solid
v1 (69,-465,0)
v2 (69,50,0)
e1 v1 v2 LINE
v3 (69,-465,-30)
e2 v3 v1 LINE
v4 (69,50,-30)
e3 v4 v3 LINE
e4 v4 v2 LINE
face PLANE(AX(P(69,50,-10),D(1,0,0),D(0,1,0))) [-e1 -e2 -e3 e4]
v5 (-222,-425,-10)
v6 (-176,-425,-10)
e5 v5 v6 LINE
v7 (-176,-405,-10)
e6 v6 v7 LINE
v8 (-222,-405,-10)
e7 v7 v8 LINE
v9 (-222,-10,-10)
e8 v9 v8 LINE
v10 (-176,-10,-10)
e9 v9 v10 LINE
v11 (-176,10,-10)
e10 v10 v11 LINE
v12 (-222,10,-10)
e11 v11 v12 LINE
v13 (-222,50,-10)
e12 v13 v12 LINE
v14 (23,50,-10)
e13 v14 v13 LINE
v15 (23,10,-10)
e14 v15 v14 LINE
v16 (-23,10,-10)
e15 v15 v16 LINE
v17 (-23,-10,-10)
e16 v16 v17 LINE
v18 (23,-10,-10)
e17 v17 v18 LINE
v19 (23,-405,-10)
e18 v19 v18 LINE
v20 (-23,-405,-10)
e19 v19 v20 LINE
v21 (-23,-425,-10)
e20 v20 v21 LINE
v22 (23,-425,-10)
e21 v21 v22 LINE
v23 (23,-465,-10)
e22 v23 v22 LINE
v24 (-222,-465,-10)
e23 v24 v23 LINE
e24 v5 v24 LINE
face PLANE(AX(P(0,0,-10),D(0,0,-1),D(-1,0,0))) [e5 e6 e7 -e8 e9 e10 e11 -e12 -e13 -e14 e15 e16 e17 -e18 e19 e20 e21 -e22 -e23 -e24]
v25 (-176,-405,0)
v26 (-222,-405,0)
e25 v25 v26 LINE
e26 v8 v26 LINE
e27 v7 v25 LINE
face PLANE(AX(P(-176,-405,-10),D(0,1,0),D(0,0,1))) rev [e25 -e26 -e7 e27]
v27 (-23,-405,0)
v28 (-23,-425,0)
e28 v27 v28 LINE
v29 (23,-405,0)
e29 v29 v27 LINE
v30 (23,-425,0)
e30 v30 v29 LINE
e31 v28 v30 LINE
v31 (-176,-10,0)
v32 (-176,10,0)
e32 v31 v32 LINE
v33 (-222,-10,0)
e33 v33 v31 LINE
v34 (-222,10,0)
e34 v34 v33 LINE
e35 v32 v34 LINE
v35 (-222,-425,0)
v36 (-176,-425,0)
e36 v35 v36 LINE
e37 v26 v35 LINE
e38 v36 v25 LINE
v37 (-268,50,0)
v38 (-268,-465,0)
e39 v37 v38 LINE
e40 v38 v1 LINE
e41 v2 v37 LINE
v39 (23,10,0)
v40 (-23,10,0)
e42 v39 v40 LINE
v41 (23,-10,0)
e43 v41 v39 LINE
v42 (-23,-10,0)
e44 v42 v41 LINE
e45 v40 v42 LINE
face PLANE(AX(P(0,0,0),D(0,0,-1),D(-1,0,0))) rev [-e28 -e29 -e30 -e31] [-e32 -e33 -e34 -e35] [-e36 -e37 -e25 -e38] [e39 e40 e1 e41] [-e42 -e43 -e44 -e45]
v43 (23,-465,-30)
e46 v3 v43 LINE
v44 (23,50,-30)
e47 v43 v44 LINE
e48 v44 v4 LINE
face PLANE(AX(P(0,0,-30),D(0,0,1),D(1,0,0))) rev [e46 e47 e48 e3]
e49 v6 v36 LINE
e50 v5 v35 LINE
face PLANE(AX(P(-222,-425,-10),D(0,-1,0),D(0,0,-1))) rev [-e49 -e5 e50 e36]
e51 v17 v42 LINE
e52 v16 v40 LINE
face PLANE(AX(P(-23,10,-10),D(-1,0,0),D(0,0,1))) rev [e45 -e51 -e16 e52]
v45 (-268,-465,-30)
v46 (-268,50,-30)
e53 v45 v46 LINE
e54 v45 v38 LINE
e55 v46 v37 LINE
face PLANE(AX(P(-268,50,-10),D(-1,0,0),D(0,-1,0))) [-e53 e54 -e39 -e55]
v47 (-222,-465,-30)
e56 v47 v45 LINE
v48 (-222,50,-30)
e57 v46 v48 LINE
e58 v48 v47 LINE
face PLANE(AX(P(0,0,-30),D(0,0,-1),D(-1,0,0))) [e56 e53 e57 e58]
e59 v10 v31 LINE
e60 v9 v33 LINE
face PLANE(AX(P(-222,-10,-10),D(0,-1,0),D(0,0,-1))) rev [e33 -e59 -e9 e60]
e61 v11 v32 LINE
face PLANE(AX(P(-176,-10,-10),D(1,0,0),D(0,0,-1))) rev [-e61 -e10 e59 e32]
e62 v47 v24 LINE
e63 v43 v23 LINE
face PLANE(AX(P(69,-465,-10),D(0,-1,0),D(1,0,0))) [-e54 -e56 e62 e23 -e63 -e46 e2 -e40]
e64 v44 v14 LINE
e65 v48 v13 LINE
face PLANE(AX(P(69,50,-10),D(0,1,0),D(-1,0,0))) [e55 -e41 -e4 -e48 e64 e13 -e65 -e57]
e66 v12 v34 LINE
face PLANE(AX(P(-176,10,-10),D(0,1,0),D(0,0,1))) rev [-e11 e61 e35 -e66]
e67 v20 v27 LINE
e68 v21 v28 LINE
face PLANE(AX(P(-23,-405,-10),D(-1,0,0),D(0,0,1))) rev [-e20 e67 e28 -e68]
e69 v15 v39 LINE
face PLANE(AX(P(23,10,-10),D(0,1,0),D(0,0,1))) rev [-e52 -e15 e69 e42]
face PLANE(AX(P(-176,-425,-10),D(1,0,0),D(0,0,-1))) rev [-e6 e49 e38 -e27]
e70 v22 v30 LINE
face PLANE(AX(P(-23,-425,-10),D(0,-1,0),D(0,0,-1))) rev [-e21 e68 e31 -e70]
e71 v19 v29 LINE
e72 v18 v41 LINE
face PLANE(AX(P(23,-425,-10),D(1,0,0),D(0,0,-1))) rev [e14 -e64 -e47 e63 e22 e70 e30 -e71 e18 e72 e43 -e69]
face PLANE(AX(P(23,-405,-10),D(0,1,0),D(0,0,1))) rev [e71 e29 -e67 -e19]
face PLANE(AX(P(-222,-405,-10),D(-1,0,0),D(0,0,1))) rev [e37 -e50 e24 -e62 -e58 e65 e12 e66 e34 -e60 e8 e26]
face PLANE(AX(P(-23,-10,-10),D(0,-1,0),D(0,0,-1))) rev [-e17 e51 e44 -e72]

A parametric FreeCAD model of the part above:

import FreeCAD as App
import Part
import Sketcher
Q = App.Units.Quantity


def add_polygon(sketch, points):
    """Adds a closed chain of lines whose ends are joined by coincident constraints."""
    first, n = sketch.GeometryCount, len(points)
    for a, b in zip(points, points[1:] + points[:1]):
        sketch.addGeometry(Part.LineSegment(App.Vector(*a, 0), App.Vector(*b, 0)), False)
    for i in range(n):
        sketch.addConstraint(Sketcher.Constraint("Coincident", first + i, 2, first + (i + 1) % n, 1))

doc = App.newDocument("Part")
body = doc.addObject("PartDesign::Body", "Body")

# Sketch on XY plane
sketch1 = doc.addObject("Sketcher::SketchObject", "Sketch")
body.addObject(sketch1)
sketch1.AttachmentSupport = (doc.XY_Plane, [""])
sketch1.MapMode = "FlatFace"
add_polygon(sketch1, [(-268, 50), (-268, -465), (69, -465), (69, 50)])  # lines 0-3
add_polygon(sketch1, [(-176, -425), (-222, -425), (-222, -405), (-176, -405)])  # lines 4-7
add_polygon(sketch1, [(23, -425), (-23, -425), (-23, -405), (23, -405)])  # lines 8-11
add_polygon(sketch1, [(-176, -10), (-222, -10), (-222, 10), (-176, 10)])  # lines 12-15
add_polygon(sketch1, [(23, -10), (-23, -10), (-23, 10), (23, 10)])  # lines 16-19
sketch1.addConstraint(Sketcher.Constraint("Vertical", 0))
sketch1.addConstraint(Sketcher.Constraint("Horizontal", 1))
sketch1.addConstraint(Sketcher.Constraint("Vertical", 2))
sketch1.addConstraint(Sketcher.Constraint("Horizontal", 3))
sketch1.addConstraint(Sketcher.Constraint("Horizontal", 4))
sketch1.addConstraint(Sketcher.Constraint("Vertical", 5))
sketch1.addConstraint(Sketcher.Constraint("Horizontal", 6))
sketch1.addConstraint(Sketcher.Constraint("Vertical", 7))
sketch1.addConstraint(Sketcher.Constraint("Horizontal", 8))
sketch1.addConstraint(Sketcher.Constraint("Vertical", 9))
sketch1.addConstraint(Sketcher.Constraint("Horizontal", 10))
sketch1.addConstraint(Sketcher.Constraint("Vertical", 11))
sketch1.addConstraint(Sketcher.Constraint("Horizontal", 12))
sketch1.addConstraint(Sketcher.Constraint("Vertical", 13))
sketch1.addConstraint(Sketcher.Constraint("Horizontal", 14))
sketch1.addConstraint(Sketcher.Constraint("Vertical", 15))
sketch1.addConstraint(Sketcher.Constraint("Horizontal", 16))
sketch1.addConstraint(Sketcher.Constraint("Vertical", 17))
sketch1.addConstraint(Sketcher.Constraint("Horizontal", 18))
sketch1.addConstraint(Sketcher.Constraint("Vertical", 19))
sketch1.addConstraint(Sketcher.Constraint("Symmetric", 16, 2, 18, 2, -1, 1))
sketch1.addConstraint(Sketcher.Constraint("Horizontal", 7, 2, 8, 2))
sketch1.addConstraint(Sketcher.Constraint("Horizontal", 6, 2, 9, 2))
sketch1.addConstraint(Sketcher.Constraint("Horizontal", 15, 2, 16, 2))
sketch1.addConstraint(Sketcher.Constraint("Horizontal", 14, 2, 17, 2))
sketch1.addConstraint(Sketcher.Constraint("Vertical", 5, 2, 12, 2))
sketch1.addConstraint(Sketcher.Constraint("Vertical", 7, 2, 14, 2))
sketch1.addConstraint(Sketcher.Constraint("Vertical", 9, 2, 16, 2))
sketch1.addConstraint(Sketcher.Constraint("Vertical", 11, 2, 18, 2))
sketch1.addConstraint(Sketcher.Constraint("Equal", 6, 8))
sketch1.addConstraint(Sketcher.Constraint("Equal", 11, 13))
sketch1.addConstraint(Sketcher.Constraint("DistanceX", 1, 1, 1, 2, Q("337 mm")))
sketch1.addConstraint(Sketcher.Constraint("DistanceX", 4, 2, 4, 1, Q("46 mm")))
sketch1.addConstraint(Sketcher.Constraint("DistanceY", 0, 2, 0, 1, Q("515 mm")))
sketch1.addConstraint(Sketcher.Constraint("DistanceY", 5, 1, 5, 2, Q("20 mm")))
sketch1.addConstraint(Sketcher.Constraint("DistanceX", 0, 2, -1, 1, Q("268 mm")))
sketch1.addConstraint(Sketcher.Constraint("DistanceY", 0, 2, -1, 1, Q("465 mm")))
sketch1.addConstraint(Sketcher.Constraint("DistanceX", 4, 2, -1, 1, Q("222 mm")))
sketch1.addConstraint(Sketcher.Constraint("DistanceY", 4, 2, -1, 1, Q("425 mm")))
pad1 = doc.addObject("PartDesign::Pad", "Pad")
body.addObject(pad1)
pad1.Profile = sketch1
pad1.Length = 10
pad1.Reversed = True

# Sketch on XY plane
sketch2 = doc.addObject("Sketcher::SketchObject", "Sketch001")
body.addObject(sketch2)
sketch2.AttachmentSupport = (doc.XY_Plane, [""])
sketch2.MapMode = "FlatFace"
sketch2.AttachmentOffset = App.Placement(App.Vector(0, 0, -10), App.Rotation())
add_polygon(sketch2, [(-222, 50), (-222, -465), (-268, -465), (-268, 50)])  # lines 0-3
add_polygon(sketch2, [(69, 50), (69, -465), (23, -465), (23, 50)])  # lines 4-7
sketch2.addConstraint(Sketcher.Constraint("Vertical", 0))
sketch2.addConstraint(Sketcher.Constraint("Horizontal", 1))
sketch2.addConstraint(Sketcher.Constraint("Vertical", 2))
sketch2.addConstraint(Sketcher.Constraint("Horizontal", 3))
sketch2.addConstraint(Sketcher.Constraint("Vertical", 4))
sketch2.addConstraint(Sketcher.Constraint("Horizontal", 5))
sketch2.addConstraint(Sketcher.Constraint("Vertical", 6))
sketch2.addConstraint(Sketcher.Constraint("Horizontal", 7))
sketch2.addConstraint(Sketcher.Constraint("Horizontal", 1, 2, 4, 2))
sketch2.addConstraint(Sketcher.Constraint("Horizontal", 3, 2, 6, 2))
sketch2.addConstraint(Sketcher.Constraint("Equal", 3, 5))
sketch2.addConstraint(Sketcher.Constraint("DistanceX", 1, 2, 1, 1, Q("46 mm")))
sketch2.addConstraint(Sketcher.Constraint("DistanceY", 0, 2, 0, 1, Q("515 mm")))
sketch2.addConstraint(Sketcher.Constraint("DistanceX", 0, 2, -1, 1, Q("222 mm")))
sketch2.addConstraint(Sketcher.Constraint("DistanceY", 0, 2, -1, 1, Q("465 mm")))
sketch2.addConstraint(Sketcher.Constraint("DistanceX", -1, 1, 4, 2, Q("69 mm")))
pad2 = doc.addObject("PartDesign::Pad", "Pad001")
body.addObject(pad2)
pad2.Profile = sketch2
pad2.Length = 20
pad2.Reversed = True

doc.recompute()
